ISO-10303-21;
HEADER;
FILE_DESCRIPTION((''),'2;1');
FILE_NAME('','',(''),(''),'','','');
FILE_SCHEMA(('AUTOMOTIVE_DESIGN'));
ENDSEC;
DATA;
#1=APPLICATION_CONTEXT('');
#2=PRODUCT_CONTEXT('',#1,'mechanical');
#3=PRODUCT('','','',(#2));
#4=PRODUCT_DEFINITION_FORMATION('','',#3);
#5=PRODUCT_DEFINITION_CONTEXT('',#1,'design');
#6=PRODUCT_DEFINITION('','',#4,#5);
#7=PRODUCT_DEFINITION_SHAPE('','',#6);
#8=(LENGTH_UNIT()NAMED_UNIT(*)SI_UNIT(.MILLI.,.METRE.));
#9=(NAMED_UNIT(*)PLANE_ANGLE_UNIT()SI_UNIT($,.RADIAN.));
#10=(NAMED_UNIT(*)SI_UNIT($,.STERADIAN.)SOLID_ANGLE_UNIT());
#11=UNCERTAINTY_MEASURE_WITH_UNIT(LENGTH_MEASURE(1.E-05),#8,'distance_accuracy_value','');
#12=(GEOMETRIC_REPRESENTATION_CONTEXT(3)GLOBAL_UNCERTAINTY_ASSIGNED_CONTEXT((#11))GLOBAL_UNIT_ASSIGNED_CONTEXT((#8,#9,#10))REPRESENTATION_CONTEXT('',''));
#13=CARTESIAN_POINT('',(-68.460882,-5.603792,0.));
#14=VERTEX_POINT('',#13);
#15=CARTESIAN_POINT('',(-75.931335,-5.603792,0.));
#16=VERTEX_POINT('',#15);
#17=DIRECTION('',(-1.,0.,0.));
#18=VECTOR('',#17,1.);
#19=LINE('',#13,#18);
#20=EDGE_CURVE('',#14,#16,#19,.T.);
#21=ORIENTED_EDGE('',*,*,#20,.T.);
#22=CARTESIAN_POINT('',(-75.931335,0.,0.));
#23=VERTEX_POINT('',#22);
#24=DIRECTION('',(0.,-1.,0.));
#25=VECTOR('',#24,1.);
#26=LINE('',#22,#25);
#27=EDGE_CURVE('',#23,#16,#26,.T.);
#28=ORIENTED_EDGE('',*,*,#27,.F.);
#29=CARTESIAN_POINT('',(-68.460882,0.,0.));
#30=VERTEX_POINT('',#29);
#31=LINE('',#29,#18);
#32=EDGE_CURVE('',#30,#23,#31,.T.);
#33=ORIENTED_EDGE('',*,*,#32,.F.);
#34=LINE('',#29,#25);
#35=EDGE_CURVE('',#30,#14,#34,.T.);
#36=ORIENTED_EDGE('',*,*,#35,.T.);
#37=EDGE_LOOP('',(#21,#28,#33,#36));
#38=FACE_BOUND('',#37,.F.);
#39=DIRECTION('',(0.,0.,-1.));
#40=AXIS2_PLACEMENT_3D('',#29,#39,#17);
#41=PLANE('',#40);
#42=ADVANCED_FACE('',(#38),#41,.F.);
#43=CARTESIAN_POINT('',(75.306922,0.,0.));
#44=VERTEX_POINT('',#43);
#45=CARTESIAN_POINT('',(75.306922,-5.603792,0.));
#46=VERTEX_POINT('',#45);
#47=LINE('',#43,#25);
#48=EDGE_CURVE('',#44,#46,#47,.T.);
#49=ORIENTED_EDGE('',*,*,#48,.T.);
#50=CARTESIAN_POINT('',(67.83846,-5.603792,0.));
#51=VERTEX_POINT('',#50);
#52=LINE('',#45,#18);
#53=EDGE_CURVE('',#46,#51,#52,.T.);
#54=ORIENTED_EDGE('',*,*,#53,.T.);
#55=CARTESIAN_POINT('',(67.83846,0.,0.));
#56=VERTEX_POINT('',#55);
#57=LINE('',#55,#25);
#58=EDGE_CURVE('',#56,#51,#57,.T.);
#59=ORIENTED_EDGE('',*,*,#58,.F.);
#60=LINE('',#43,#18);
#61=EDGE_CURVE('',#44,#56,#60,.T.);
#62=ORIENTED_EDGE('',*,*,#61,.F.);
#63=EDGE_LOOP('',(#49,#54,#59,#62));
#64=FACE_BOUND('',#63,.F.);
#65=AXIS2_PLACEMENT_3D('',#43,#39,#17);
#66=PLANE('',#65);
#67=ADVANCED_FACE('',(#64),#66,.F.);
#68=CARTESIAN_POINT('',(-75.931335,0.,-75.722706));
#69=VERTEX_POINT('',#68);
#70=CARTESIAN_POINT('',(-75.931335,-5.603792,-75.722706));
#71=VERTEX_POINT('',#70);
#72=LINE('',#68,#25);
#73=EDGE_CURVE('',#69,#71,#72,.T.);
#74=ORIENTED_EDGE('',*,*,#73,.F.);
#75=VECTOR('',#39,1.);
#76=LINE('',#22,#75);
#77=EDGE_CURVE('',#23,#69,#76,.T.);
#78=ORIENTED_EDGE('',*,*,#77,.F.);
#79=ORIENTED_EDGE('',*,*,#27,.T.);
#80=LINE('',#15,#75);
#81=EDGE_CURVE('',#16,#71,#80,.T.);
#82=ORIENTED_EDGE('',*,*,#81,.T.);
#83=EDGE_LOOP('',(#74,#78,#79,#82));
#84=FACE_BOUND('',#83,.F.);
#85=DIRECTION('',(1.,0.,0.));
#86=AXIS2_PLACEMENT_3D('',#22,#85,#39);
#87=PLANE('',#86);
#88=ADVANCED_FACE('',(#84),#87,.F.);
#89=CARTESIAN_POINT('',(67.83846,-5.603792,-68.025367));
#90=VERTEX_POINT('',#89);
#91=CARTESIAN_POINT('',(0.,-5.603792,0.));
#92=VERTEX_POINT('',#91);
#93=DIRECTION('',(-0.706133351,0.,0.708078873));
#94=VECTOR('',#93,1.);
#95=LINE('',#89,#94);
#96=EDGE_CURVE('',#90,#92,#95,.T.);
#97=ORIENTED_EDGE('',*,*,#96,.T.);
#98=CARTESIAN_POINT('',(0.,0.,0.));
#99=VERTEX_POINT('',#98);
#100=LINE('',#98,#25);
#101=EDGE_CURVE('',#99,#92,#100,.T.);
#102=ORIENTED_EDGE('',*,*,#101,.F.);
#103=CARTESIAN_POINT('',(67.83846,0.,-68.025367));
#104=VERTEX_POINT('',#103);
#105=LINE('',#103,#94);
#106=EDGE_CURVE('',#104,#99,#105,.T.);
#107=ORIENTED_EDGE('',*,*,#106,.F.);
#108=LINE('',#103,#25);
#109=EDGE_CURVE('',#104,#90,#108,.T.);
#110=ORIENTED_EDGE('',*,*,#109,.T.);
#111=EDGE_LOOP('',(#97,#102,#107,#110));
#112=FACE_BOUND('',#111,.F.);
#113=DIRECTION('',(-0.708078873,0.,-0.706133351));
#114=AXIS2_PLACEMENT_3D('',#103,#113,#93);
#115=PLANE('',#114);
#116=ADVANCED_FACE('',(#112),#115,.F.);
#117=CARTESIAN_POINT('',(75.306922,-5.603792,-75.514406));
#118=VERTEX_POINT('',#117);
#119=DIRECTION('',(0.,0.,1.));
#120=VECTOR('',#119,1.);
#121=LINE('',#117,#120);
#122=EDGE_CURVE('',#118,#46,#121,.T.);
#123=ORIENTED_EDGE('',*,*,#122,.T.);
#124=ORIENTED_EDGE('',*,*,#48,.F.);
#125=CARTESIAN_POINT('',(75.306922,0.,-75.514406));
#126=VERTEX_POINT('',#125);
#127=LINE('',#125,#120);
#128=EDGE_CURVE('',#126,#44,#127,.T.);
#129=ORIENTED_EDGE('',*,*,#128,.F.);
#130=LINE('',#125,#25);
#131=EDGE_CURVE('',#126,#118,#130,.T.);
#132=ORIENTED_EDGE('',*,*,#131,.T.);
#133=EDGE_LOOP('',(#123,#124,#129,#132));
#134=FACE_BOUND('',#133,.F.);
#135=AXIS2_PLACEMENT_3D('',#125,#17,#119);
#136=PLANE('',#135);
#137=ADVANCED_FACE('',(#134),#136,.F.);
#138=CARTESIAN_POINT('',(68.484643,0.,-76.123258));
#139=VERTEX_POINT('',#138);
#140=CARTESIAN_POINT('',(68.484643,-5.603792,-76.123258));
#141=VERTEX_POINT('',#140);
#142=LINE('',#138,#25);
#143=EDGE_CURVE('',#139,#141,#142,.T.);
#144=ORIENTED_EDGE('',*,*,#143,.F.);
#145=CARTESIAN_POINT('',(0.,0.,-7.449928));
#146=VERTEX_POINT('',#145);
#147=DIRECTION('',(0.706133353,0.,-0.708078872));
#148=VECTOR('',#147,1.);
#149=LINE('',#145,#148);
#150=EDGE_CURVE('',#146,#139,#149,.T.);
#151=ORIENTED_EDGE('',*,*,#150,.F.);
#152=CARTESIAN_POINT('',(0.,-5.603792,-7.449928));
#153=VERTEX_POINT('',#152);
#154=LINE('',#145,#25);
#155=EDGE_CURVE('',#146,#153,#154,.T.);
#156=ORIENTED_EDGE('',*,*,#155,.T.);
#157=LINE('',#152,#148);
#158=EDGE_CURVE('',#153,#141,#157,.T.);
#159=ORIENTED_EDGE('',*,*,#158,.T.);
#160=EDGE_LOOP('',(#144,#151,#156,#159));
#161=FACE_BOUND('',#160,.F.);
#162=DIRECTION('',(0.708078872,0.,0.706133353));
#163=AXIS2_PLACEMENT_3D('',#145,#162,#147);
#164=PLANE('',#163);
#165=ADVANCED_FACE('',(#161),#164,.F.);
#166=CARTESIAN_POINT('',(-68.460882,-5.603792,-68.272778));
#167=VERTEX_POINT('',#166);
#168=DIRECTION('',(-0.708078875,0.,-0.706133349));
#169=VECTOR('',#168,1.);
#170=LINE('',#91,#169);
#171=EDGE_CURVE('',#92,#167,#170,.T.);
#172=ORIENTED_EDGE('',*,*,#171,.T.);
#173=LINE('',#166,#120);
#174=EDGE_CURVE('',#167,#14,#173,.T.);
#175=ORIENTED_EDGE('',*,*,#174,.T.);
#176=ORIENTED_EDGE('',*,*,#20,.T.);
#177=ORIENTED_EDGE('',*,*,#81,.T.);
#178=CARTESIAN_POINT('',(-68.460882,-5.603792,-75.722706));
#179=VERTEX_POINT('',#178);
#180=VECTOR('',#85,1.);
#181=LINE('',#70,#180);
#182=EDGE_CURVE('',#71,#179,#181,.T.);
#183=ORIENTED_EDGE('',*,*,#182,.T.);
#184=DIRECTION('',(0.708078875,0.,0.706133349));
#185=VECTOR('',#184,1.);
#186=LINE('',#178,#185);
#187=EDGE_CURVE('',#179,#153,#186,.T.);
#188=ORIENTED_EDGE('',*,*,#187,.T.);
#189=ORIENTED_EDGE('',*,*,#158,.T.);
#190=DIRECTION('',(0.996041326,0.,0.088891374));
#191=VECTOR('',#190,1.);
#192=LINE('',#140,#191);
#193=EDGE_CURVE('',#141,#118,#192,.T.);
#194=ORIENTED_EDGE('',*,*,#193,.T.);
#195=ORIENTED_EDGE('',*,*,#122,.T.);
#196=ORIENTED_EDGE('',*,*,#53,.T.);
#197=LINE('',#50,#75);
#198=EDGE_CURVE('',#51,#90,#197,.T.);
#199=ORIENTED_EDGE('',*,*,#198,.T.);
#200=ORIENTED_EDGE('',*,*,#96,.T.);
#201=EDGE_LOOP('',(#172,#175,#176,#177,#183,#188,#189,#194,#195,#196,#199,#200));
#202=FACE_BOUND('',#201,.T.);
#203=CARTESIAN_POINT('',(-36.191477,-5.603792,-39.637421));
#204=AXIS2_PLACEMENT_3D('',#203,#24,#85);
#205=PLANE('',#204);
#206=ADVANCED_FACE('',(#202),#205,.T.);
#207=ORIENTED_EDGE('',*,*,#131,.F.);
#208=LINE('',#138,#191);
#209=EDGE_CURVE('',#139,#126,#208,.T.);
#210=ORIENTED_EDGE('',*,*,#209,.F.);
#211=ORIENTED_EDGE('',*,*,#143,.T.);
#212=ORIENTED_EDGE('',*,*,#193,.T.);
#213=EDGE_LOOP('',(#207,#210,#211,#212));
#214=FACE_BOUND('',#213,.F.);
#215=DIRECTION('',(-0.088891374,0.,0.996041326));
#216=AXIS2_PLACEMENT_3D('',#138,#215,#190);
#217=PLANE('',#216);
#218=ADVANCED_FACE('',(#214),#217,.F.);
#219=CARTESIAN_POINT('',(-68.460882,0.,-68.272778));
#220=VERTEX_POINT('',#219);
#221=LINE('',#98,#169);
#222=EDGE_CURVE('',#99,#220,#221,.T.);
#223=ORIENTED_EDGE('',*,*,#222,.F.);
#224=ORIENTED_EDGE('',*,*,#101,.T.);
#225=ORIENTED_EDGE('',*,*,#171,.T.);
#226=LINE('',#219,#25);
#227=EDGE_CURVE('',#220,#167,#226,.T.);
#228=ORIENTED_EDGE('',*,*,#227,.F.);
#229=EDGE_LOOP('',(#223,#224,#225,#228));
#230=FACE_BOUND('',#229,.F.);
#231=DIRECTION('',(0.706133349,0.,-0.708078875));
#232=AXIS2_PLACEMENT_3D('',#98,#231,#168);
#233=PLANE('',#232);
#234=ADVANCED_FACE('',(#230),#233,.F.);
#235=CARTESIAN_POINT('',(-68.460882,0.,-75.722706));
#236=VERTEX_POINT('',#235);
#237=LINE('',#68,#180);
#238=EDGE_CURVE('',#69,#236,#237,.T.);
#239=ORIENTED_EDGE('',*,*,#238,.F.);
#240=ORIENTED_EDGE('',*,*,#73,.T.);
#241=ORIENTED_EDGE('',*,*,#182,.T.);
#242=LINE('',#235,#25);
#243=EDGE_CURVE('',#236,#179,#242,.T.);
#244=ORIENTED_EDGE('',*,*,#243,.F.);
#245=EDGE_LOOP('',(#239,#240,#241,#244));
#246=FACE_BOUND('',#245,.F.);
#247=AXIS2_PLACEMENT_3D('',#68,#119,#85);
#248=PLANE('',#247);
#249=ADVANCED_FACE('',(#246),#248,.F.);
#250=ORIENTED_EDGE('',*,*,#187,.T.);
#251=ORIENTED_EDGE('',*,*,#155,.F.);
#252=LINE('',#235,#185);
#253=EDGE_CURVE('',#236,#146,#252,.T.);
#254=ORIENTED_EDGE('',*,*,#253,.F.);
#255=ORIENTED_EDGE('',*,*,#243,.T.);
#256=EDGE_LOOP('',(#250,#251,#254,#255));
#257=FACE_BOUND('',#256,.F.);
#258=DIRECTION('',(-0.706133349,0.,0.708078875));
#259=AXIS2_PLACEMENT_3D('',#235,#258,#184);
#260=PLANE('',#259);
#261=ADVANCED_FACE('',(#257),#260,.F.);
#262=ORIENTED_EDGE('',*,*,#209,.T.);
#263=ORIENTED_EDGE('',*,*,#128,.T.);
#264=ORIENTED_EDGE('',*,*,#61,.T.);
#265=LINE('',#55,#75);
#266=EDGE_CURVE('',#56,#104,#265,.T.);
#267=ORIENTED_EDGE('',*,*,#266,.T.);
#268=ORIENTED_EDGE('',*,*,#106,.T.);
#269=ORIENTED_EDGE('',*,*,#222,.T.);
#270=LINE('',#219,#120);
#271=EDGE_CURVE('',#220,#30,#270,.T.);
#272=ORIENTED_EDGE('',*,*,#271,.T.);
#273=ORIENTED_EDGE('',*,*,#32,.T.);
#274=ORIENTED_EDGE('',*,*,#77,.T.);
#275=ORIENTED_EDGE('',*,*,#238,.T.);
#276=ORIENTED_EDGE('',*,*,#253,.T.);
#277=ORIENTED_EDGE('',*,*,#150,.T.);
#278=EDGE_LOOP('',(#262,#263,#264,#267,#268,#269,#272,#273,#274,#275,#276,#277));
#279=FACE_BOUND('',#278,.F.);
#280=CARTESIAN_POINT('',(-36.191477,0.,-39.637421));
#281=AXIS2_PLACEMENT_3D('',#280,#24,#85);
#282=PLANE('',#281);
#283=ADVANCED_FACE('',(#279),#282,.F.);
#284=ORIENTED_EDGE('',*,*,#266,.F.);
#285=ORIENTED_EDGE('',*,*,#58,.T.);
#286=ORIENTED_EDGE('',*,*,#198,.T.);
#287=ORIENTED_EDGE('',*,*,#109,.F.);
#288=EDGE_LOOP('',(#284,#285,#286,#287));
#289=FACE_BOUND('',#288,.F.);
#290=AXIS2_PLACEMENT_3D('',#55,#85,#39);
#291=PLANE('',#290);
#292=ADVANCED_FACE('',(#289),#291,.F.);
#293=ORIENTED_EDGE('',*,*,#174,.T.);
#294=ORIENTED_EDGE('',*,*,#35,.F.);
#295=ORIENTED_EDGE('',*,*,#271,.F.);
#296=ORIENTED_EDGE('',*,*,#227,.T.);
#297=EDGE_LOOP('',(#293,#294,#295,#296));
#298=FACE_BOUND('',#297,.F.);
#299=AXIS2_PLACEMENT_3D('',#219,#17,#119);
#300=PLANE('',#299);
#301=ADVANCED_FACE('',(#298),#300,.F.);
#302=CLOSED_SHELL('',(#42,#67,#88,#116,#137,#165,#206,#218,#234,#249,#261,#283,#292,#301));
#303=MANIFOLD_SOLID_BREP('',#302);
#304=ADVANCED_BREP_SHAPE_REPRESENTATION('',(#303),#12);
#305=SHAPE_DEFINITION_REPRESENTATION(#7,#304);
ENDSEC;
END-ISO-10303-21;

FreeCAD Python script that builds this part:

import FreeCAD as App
import Part
import Sketcher
from FreeCAD import Vector


def add_polygon(sketch, points):
    """Adds a closed chain of lines whose ends are joined by coincident constraints."""
    first, n = sketch.GeometryCount, len(points)
    for a, b in zip(points, points[1:] + points[:1]):
        sketch.addGeometry(Part.LineSegment(App.Vector(*a, 0), App.Vector(*b, 0)), False)
    for i in range(n):
        sketch.addConstraint(Sketcher.Constraint("Coincident", first + i, 2, first + (i + 1) % n, 1))

doc = App.newDocument("Part")
body = doc.addObject("PartDesign::Body", "Body")

# Sketch on XZ plane
sketch1 = doc.addObject("Sketcher::SketchObject", "Sketch")
body.addObject(sketch1)
sketch1.AttachmentSupport = (doc.XZ_Plane, [""])
sketch1.MapMode = "FlatFace"
add_polygon(sketch1, [(-68, 0), (-76, 0), (-76, -76), (-68, -76), (0, -7), (68, -76), (75, -76), (75, 0), (68, 0), (68, -68), (0, 0), (-68, -68)])  # lines 0-11
sketch1.addConstraint([
    Sketcher.Constraint("Horizontal", 0),
    Sketcher.Constraint("Vertical", 1),
    Sketcher.Constraint("Horizontal", 2),
    Sketcher.Constraint("Vertical", 6),
    Sketcher.Constraint("Horizontal", 7),
    Sketcher.Constraint("Vertical", 8),
    Sketcher.Constraint("Vertical", 11),
    Sketcher.Constraint("Coincident", 9, 2, -1, 1),
    Sketcher.Constraint("PointOnObject", 0, 2, -1),
    Sketcher.Constraint("PointOnObject", 3, 2, -2),
    Sketcher.Constraint("PointOnObject", 6, 2, -1),
    Sketcher.Constraint("Perpendicular", 3, 4),
    Sketcher.Constraint("Parallel", 4, 9),
    Sketcher.Constraint("Perpendicular", 9, 10),
    Sketcher.Constraint("Vertical", 2, 2, 10, 2),
    Sketcher.Constraint("DistanceY", 11, 1, 11, 2, 68.272778),
    Sketcher.Constraint("DistanceY", 2, 2, 5, 2, 0.2083),
    Sketcher.Constraint("Distance", 3, 96.68539),
    Sketcher.Constraint("DistanceX", 0, 2, 0, 1, 7.470453),
    Sketcher.Constraint("DistanceX", 7, 2, 7, 1, 7.468462),
    Sketcher.Constraint("DistanceY", 1, 2, 1, 1, 75.722706),
    Sketcher.Constraint("DistanceY", 8, 2, 8, 1, 68.025367),
    Sketcher.Constraint("DistanceY", 4, 2, -1, 1, 76.123258),
])
pad1 = doc.addObject("PartDesign::Pad", "Pad")
body.addObject(pad1)
pad1.Profile = sketch1
pad1.Length = 5.603792

doc.recompute()
